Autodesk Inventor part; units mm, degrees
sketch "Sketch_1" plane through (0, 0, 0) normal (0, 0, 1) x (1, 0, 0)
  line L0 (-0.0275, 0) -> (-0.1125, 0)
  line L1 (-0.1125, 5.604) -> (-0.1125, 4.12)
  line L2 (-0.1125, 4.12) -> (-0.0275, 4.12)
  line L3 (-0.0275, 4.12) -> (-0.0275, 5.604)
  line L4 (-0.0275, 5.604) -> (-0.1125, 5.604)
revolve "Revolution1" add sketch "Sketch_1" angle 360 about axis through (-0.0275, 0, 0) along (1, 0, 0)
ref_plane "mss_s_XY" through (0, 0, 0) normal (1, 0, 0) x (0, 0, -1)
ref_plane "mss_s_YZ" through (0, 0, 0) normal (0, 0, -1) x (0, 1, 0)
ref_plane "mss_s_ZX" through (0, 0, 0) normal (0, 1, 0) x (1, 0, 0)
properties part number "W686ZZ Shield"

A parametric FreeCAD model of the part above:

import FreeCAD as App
import Part
import Sketcher

V = App.Vector

doc = App.newDocument("Part")
body = doc.addObject("PartDesign::Body", "Body")

# Sketch on XY plane
sketch1 = body.newObject("Sketcher::SketchObject", "Sketch")
sketch1.AttachmentSupport = (doc.getObject("XY_Plane"), [""])
sketch1.MapMode = "FlatFace"
sketch1.addGeometry(Part.LineSegment(V(-0.03, 5.6, 0), V(-0.11, 5.6, 0)), False)
sketch1.addGeometry(Part.LineSegment(V(-0.11, 5.6, 0), V(-0.11, 4.12, 0)), False)
sketch1.addGeometry(Part.LineSegment(V(-0.11, 4.12, 0), V(-0.03, 4.12, 0)), False)
sketch1.addGeometry(Part.LineSegment(V(-0.03, 4.12, 0), V(-0.03, 5.6, 0)), False)
sketch1.addConstraint(Sketcher.Constraint("Coincident", 0, 2, 1, 1))
sketch1.addConstraint(Sketcher.Constraint("Coincident", 1, 2, 2, 1))
sketch1.addConstraint(Sketcher.Constraint("Coincident", 2, 2, 3, 1))
sketch1.addConstraint(Sketcher.Constraint("Coincident", 3, 2, 0, 1))
sketch1.addConstraint(Sketcher.Constraint("Horizontal", 0))
sketch1.addConstraint(Sketcher.Constraint("Vertical", 1))
sketch1.addConstraint(Sketcher.Constraint("Horizontal", 2))
sketch1.addConstraint(Sketcher.Constraint("Vertical", 3))
sketch1.addConstraint(Sketcher.Constraint("DistanceX", 0, 2, 0, 1, 0.085))
sketch1.addConstraint(Sketcher.Constraint("DistanceY", 1, 2, 1, 1, 1.484))
sketch1.addConstraint(Sketcher.Constraint("DistanceY", -1, 1, 1, 2, 4.12))
sketch1.addConstraint(Sketcher.Constraint("DistanceX", 0, 2, -1, 1, 0.1125))
revolution = body.newObject("PartDesign::Revolution", "Revolution")
revolution.Profile = sketch1
revolution.ReferenceAxis = (sketch1, ["H_Axis"])
revolution.Angle = 360

doc.recompute()
